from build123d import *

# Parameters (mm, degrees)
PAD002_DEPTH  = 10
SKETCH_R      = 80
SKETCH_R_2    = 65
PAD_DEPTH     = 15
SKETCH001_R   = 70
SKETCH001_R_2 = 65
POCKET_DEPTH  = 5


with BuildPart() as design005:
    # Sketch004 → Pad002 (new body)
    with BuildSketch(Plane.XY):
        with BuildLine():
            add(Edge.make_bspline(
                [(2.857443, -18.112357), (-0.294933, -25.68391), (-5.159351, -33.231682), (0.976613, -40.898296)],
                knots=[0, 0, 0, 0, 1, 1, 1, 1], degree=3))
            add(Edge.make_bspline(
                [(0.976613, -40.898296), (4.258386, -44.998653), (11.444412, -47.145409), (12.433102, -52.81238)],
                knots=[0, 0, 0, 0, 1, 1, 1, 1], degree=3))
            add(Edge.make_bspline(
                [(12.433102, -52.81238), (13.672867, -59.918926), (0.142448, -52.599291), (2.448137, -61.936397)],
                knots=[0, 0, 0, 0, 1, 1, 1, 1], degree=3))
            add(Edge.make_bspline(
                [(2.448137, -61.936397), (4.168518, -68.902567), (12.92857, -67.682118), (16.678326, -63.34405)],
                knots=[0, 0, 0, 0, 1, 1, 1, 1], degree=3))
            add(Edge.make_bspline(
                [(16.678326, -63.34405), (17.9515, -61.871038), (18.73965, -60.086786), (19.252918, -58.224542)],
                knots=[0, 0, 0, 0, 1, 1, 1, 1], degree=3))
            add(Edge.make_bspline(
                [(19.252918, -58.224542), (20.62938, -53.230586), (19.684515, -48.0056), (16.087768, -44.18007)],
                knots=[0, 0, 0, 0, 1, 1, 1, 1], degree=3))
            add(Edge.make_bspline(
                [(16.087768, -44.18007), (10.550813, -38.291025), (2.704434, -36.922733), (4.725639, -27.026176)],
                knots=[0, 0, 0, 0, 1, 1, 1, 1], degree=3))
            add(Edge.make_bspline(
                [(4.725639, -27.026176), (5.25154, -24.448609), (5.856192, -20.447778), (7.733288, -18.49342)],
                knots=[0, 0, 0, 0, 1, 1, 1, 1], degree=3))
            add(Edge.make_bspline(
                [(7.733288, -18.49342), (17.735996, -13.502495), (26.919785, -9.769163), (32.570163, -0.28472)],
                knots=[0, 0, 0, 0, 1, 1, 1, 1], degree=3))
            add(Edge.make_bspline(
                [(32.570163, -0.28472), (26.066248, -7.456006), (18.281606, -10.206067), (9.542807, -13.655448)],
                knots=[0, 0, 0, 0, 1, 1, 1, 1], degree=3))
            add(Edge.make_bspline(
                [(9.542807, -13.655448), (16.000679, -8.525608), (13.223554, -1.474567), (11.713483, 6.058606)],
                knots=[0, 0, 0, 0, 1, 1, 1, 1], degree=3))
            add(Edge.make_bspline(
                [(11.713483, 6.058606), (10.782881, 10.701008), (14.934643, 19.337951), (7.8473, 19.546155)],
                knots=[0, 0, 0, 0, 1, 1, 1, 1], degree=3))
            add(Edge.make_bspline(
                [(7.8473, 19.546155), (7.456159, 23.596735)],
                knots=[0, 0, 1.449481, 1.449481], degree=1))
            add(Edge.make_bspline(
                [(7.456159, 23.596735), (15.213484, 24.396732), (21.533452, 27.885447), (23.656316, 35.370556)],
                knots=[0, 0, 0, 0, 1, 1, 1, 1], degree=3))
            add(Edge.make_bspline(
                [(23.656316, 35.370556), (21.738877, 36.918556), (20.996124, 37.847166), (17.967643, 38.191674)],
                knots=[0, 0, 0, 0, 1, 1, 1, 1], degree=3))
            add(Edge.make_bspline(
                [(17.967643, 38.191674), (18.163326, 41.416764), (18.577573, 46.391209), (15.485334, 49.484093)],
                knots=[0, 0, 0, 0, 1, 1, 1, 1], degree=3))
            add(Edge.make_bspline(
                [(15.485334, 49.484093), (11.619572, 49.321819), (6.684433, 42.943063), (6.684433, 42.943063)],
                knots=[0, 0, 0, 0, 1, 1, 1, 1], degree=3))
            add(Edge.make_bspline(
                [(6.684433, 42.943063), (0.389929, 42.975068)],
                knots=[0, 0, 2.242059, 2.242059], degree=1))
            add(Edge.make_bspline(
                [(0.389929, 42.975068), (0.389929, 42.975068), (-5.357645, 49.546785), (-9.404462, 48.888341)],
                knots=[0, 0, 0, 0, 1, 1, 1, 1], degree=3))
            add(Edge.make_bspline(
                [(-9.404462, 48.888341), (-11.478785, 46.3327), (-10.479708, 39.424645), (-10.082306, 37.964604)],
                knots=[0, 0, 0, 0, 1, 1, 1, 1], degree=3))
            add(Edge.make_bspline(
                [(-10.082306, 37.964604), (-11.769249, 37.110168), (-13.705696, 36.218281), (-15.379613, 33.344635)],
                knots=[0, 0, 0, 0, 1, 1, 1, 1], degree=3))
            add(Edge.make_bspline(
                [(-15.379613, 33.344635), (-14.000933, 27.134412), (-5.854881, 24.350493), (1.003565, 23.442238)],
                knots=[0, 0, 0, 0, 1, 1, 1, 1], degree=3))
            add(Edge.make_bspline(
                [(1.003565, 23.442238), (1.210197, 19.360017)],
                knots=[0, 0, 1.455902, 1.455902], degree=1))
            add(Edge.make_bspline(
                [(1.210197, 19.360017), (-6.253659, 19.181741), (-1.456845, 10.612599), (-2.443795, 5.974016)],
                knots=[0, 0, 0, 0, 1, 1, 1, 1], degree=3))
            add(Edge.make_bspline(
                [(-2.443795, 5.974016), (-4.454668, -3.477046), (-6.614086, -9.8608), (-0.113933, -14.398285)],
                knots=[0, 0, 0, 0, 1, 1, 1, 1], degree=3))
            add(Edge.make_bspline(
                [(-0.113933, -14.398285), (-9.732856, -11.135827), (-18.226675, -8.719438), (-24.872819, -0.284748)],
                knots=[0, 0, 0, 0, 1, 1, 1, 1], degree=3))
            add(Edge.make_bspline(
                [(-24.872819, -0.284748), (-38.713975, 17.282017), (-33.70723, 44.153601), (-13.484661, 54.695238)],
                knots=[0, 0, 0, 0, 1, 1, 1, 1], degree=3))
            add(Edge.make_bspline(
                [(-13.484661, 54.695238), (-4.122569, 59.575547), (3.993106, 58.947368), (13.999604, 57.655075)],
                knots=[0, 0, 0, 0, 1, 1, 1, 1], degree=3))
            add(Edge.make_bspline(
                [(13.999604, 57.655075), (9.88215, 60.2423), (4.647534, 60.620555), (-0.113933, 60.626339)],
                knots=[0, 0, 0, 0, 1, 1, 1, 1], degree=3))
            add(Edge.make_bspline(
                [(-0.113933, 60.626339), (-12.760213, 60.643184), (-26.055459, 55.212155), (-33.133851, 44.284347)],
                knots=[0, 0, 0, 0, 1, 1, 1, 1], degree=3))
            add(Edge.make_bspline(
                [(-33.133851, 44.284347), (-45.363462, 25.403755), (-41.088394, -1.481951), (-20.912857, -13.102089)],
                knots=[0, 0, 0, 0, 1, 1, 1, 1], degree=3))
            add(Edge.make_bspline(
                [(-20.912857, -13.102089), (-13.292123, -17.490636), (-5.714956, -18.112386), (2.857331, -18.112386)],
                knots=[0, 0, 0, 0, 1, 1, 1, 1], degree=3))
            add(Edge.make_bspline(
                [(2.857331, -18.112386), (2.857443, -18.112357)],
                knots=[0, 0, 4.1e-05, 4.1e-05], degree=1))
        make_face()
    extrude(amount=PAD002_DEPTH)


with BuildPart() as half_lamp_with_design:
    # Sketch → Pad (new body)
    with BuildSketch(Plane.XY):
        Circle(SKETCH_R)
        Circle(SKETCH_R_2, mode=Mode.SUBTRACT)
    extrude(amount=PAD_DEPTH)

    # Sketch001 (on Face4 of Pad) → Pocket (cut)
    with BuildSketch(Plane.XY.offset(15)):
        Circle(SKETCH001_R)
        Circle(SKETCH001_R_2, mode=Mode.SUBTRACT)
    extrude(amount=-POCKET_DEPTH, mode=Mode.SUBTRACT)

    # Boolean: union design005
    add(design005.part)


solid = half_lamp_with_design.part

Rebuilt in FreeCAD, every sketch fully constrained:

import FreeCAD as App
import Part
import Sketcher
Q = App.Units.Quantity

doc = App.newDocument("Part")
body = doc.addObject("PartDesign::Body", "Body")

# Sketch on XY plane
sketch1 = body.newObject("Sketcher::SketchObject", "Sketch")
sketch1.AttachmentSupport = (doc.getObject("XY_Plane"), [""])
sketch1.MapMode = "FlatFace"
sketch1.addGeometry(Part.BSplineCurve([App.Vector(2.857443, -18.112357, 0), App.Vector(-0.294933, -25.68391, 0), App.Vector(-5.159351, -33.231682, 0), App.Vector(0.976613, -40.898296, 0)], [4, 4], [0, 1], False, 3, [1, 1, 1, 1], False), False)
sketch1.addGeometry(Part.BSplineCurve([App.Vector(0.976613, -40.898296, 0), App.Vector(4.258386, -44.998653, 0), App.Vector(11.444412, -47.145409, 0), App.Vector(12.433102, -52.81238, 0)], [4, 4], [0, 1], False, 3, [1, 1, 1, 1], False), False)
sketch1.addGeometry(Part.BSplineCurve([App.Vector(12.433102, -52.81238, 0), App.Vector(13.672867, -59.918926, 0), App.Vector(0.142448, -52.599291, 0), App.Vector(2.448137, -61.936397, 0)], [4, 4], [0, 1], False, 3, [1, 1, 1, 1], False), False)
sketch1.addGeometry(Part.BSplineCurve([App.Vector(2.448137, -61.936397, 0), App.Vector(4.168518, -68.902567, 0), App.Vector(12.92857, -67.682118, 0), App.Vector(16.678326, -63.34405, 0)], [4, 4], [0, 1], False, 3, [1, 1, 1, 1], False), False)
sketch1.addGeometry(Part.BSplineCurve([App.Vector(16.678326, -63.34405, 0), App.Vector(17.9515, -61.871038, 0), App.Vector(18.73965, -60.086786, 0), App.Vector(19.252918, -58.224542, 0)], [4, 4], [0, 1], False, 3, [1, 1, 1, 1], False), False)
sketch1.addGeometry(Part.BSplineCurve([App.Vector(19.252918, -58.224542, 0), App.Vector(20.62938, -53.230586, 0), App.Vector(19.684515, -48.0056, 0), App.Vector(16.087768, -44.18007, 0)], [4, 4], [0, 1], False, 3, [1, 1, 1, 1], False), False)
sketch1.addGeometry(Part.BSplineCurve([App.Vector(16.087768, -44.18007, 0), App.Vector(10.550813, -38.291025, 0), App.Vector(2.704434, -36.922733, 0), App.Vector(4.725639, -27.026176, 0)], [4, 4], [0, 1], False, 3, [1, 1, 1, 1], False), False)
sketch1.addGeometry(Part.BSplineCurve([App.Vector(4.725639, -27.026176, 0), App.Vector(5.25154, -24.448609, 0), App.Vector(5.856192, -20.447778, 0), App.Vector(7.733288, -18.49342, 0)], [4, 4], [0, 1], False, 3, [1, 1, 1, 1], False), False)
sketch1.addGeometry(Part.BSplineCurve([App.Vector(7.733288, -18.49342, 0), App.Vector(17.735996, -13.502495, 0), App.Vector(26.919785, -9.769163, 0), App.Vector(32.570163, -0.28472, 0)], [4, 4], [0, 1], False, 3, [1, 1, 1, 1], False), False)
sketch1.addGeometry(Part.BSplineCurve([App.Vector(32.570163, -0.28472, 0), App.Vector(26.066248, -7.456006, 0), App.Vector(18.281606, -10.206067, 0), App.Vector(9.542807, -13.655448, 0)], [4, 4], [0, 1], False, 3, [1, 1, 1, 1], False), False)
sketch1.addGeometry(Part.BSplineCurve([App.Vector(9.542807, -13.655448, 0), App.Vector(16.000679, -8.525608, 0), App.Vector(13.223554, -1.474567, 0), App.Vector(11.713483, 6.058606, 0)], [4, 4], [0, 1], False, 3, [1, 1, 1, 1], False), False)
sketch1.addGeometry(Part.BSplineCurve([App.Vector(11.713483, 6.058606, 0), App.Vector(10.782881, 10.701008, 0), App.Vector(14.934643, 19.337951, 0), App.Vector(7.8473, 19.546155, 0)], [4, 4], [0, 1], False, 3, [1, 1, 1, 1], False), False)
sketch1.addGeometry(Part.BSplineCurve([App.Vector(7.8473, 19.546155, 0), App.Vector(7.456159, 23.596735, 0)], [2, 2], [0, 1.449481], False, 1, [1, 1], False), False)
sketch1.addGeometry(Part.BSplineCurve([App.Vector(7.456159, 23.596735, 0), App.Vector(15.213484, 24.396732, 0), App.Vector(21.533452, 27.885447, 0), App.Vector(23.656316, 35.370556, 0)], [4, 4], [0, 1], False, 3, [1, 1, 1, 1], False), False)
sketch1.addGeometry(Part.BSplineCurve([App.Vector(23.656316, 35.370556, 0), App.Vector(21.738877, 36.918556, 0), App.Vector(20.996124, 37.847166, 0), App.Vector(17.967643, 38.191674, 0)], [4, 4], [0, 1], False, 3, [1, 1, 1, 1], False), False)
sketch1.addGeometry(Part.BSplineCurve([App.Vector(17.967643, 38.191674, 0), App.Vector(18.163326, 41.416764, 0), App.Vector(18.577573, 46.391209, 0), App.Vector(15.485334, 49.484093, 0)], [4, 4], [0, 1], False, 3, [1, 1, 1, 1], False), False)
sketch1.addGeometry(Part.BSplineCurve([App.Vector(15.485334, 49.484093, 0), App.Vector(11.619572, 49.321819, 0), App.Vector(6.684433, 42.943063, 0), App.Vector(6.684433, 42.943063, 0)], [4, 4], [0, 1], False, 3, [1, 1, 1, 1], False), False)
sketch1.addGeometry(Part.BSplineCurve([App.Vector(6.684433, 42.943063, 0), App.Vector(0.389929, 42.975068, 0)], [2, 2], [0, 2.242059], False, 1, [1, 1], False), False)
sketch1.addGeometry(Part.BSplineCurve([App.Vector(0.389929, 42.975068, 0), App.Vector(0.389929, 42.975068, 0), App.Vector(-5.357645, 49.546785, 0), App.Vector(-9.404462, 48.888341, 0)], [4, 4], [0, 1], False, 3, [1, 1, 1, 1], False), False)
sketch1.addGeometry(Part.BSplineCurve([App.Vector(-9.404462, 48.888341, 0), App.Vector(-11.478785, 46.3327, 0), App.Vector(-10.479708, 39.424645, 0), App.Vector(-10.082306, 37.964604, 0)], [4, 4], [0, 1], False, 3, [1, 1, 1, 1], False), False)
sketch1.addGeometry(Part.BSplineCurve([App.Vector(-10.082306, 37.964604, 0), App.Vector(-11.769249, 37.110168, 0), App.Vector(-13.705696, 36.218281, 0), App.Vector(-15.379613, 33.344635, 0)], [4, 4], [0, 1], False, 3, [1, 1, 1, 1], False), False)
sketch1.addGeometry(Part.BSplineCurve([App.Vector(-15.379613, 33.344635, 0), App.Vector(-14.000933, 27.134412, 0), App.Vector(-5.854881, 24.350493, 0), App.Vector(1.003565, 23.442238, 0)], [4, 4], [0, 1], False, 3, [1, 1, 1, 1], False), False)
sketch1.addGeometry(Part.BSplineCurve([App.Vector(1.003565, 23.442238, 0), App.Vector(1.210197, 19.360017, 0)], [2, 2], [0, 1.455902], False, 1, [1, 1], False), False)
sketch1.addGeometry(Part.BSplineCurve([App.Vector(1.210197, 19.360017, 0), App.Vector(-6.253659, 19.181741, 0), App.Vector(-1.456845, 10.612599, 0), App.Vector(-2.443795, 5.974016, 0)], [4, 4], [0, 1], False, 3, [1, 1, 1, 1], False), False)
sketch1.addGeometry(Part.BSplineCurve([App.Vector(-2.443795, 5.974016, 0), App.Vector(-4.454668, -3.477046, 0), App.Vector(-6.614086, -9.8608, 0), App.Vector(-0.113933, -14.398285, 0)], [4, 4], [0, 1], False, 3, [1, 1, 1, 1], False), False)
sketch1.addGeometry(Part.BSplineCurve([App.Vector(-0.113933, -14.398285, 0), App.Vector(-9.732856, -11.135827, 0), App.Vector(-18.226675, -8.719438, 0), App.Vector(-24.872819, -0.284748, 0)], [4, 4], [0, 1], False, 3, [1, 1, 1, 1], False), False)
sketch1.addGeometry(Part.BSplineCurve([App.Vector(-24.872819, -0.284748, 0), App.Vector(-38.713975, 17.282017, 0), App.Vector(-33.70723, 44.153601, 0), App.Vector(-13.484661, 54.695238, 0)], [4, 4], [0, 1], False, 3, [1, 1, 1, 1], False), False)
sketch1.addGeometry(Part.BSplineCurve([App.Vector(-13.484661, 54.695238, 0), App.Vector(-4.122569, 59.575547, 0), App.Vector(3.993106, 58.947368, 0), App.Vector(13.999604, 57.655075, 0)], [4, 4], [0, 1], False, 3, [1, 1, 1, 1], False), False)
sketch1.addGeometry(Part.BSplineCurve([App.Vector(13.999604, 57.655075, 0), App.Vector(9.88215, 60.2423, 0), App.Vector(4.647534, 60.620555, 0), App.Vector(-0.113933, 60.626339, 0)], [4, 4], [0, 1], False, 3, [1, 1, 1, 1], False), False)
sketch1.addGeometry(Part.BSplineCurve([App.Vector(-0.113933, 60.626339, 0), App.Vector(-12.760213, 60.643184, 0), App.Vector(-26.055459, 55.212155, 0), App.Vector(-33.133851, 44.284347, 0)], [4, 4], [0, 1], False, 3, [1, 1, 1, 1], False), False)
sketch1.addGeometry(Part.BSplineCurve([App.Vector(-33.133851, 44.284347, 0), App.Vector(-45.363462, 25.403755, 0), App.Vector(-41.088394, -1.481951, 0), App.Vector(-20.912857, -13.102089, 0)], [4, 4], [0, 1], False, 3, [1, 1, 1, 1], False), False)
sketch1.addGeometry(Part.BSplineCurve([App.Vector(-20.912857, -13.102089, 0), App.Vector(-13.292123, -17.490636, 0), App.Vector(-5.714956, -18.112386, 0), App.Vector(2.857331, -18.112386, 0)], [4, 4], [0, 1], False, 3, [1, 1, 1, 1], False), False)
sketch1.addGeometry(Part.BSplineCurve([App.Vector(2.857331, -18.112386, 0), App.Vector(2.857443, -18.112357, 0)], [2, 2], [0, 0.000041], False, 1, [1, 1], False), False)
sketch1.addConstraint(Sketcher.Constraint("Block", 0))
sketch1.addConstraint(Sketcher.Constraint("Block", 1))
sketch1.addConstraint(Sketcher.Constraint("Block", 2))
sketch1.addConstraint(Sketcher.Constraint("Block", 3))
sketch1.addConstraint(Sketcher.Constraint("Block", 4))
sketch1.addConstraint(Sketcher.Constraint("Block", 5))
sketch1.addConstraint(Sketcher.Constraint("Block", 6))
sketch1.addConstraint(Sketcher.Constraint("Block", 7))
sketch1.addConstraint(Sketcher.Constraint("Block", 8))
sketch1.addConstraint(Sketcher.Constraint("Block", 9))
sketch1.addConstraint(Sketcher.Constraint("Block", 10))
sketch1.addConstraint(Sketcher.Constraint("Block", 11))
sketch1.addConstraint(Sketcher.Constraint("Block", 12))
sketch1.addConstraint(Sketcher.Constraint("Block", 13))
sketch1.addConstraint(Sketcher.Constraint("Block", 14))
sketch1.addConstraint(Sketcher.Constraint("Block", 15))
sketch1.addConstraint(Sketcher.Constraint("Block", 16))
sketch1.addConstraint(Sketcher.Constraint("Block", 17))
sketch1.addConstraint(Sketcher.Constraint("Block", 18))
sketch1.addConstraint(Sketcher.Constraint("Block", 19))
sketch1.addConstraint(Sketcher.Constraint("Block", 20))
sketch1.addConstraint(Sketcher.Constraint("Block", 21))
sketch1.addConstraint(Sketcher.Constraint("Block", 22))
sketch1.addConstraint(Sketcher.Constraint("Block", 23))
sketch1.addConstraint(Sketcher.Constraint("Block", 24))
sketch1.addConstraint(Sketcher.Constraint("Block", 25))
sketch1.addConstraint(Sketcher.Constraint("Block", 26))
sketch1.addConstraint(Sketcher.Constraint("Block", 27))
sketch1.addConstraint(Sketcher.Constraint("Block", 28))
sketch1.addConstraint(Sketcher.Constraint("Block", 29))
sketch1.addConstraint(Sketcher.Constraint("Block", 30))
sketch1.addConstraint(Sketcher.Constraint("Block", 31))
sketch1.addConstraint(Sketcher.Constraint("Block", 32))
pad1 = body.newObject("PartDesign::Pad", "Pad")
pad1.Profile = sketch1
pad1.Length = 10
body2 = doc.addObject("PartDesign::Body", "Body001")

# Sketch on XY plane
sketch2 = body2.newObject("Sketcher::SketchObject", "Sketch001")
sketch2.AttachmentSupport = (doc.getObject("XY_Plane001"), [""])
sketch2.MapMode = "FlatFace"
sketch2.addGeometry(Part.Circle(App.Vector(0, 0, 0), App.Vector(0, 0, 1), 80), False)
sketch2.addGeometry(Part.Circle(App.Vector(0, 0, 0), App.Vector(0, 0, 1), 65), False)
sketch2.addConstraint(Sketcher.Constraint("Coincident", 0, 3, -1, 1))
sketch2.addConstraint(Sketcher.Constraint("Coincident", 1, 3, -1, 1))
sketch2.addConstraint(Sketcher.Constraint("Diameter", 0, Q("160 mm")))
sketch2.addConstraint(Sketcher.Constraint("Diameter", 1, Q("130 mm")))
pad2 = body2.newObject("PartDesign::Pad", "Pad001")
pad2.Profile = sketch2
pad2.Length = 15

# Sketch on XY plane
sketch3 = body2.newObject("Sketcher::SketchObject", "Sketch002")
sketch3.AttachmentSupport = (doc.getObject("XY_Plane001"), [""])
sketch3.MapMode = "FlatFace"
sketch3.AttachmentOffset = App.Placement(App.Vector(0, 0, 15), App.Rotation())
sketch3.addGeometry(Part.Circle(App.Vector(0, 0, 0), App.Vector(0, 0, 1), 70), False)
sketch3.addGeometry(Part.Circle(App.Vector(0, 0, 0), App.Vector(0, 0, 1), 65), False)
sketch3.addConstraint(Sketcher.Constraint("Coincident", 0, 3, -1, 1))
sketch3.addConstraint(Sketcher.Constraint("Coincident", 1, 3, -1, 1))
sketch3.addConstraint(Sketcher.Constraint("Diameter", 0, Q("140 mm")))
sketch3.addConstraint(Sketcher.Constraint("Diameter", 1, Q("130 mm")))
pocket1 = body2.newObject("PartDesign::Pocket", "Pocket")
pocket1.Profile = sketch3
pocket1.Length = 5
doc.recompute()

boolean = body2.newObject("PartDesign::Boolean", "Boolean")
boolean.Type = "Fuse"
boolean.addObjects([body])

doc.recompute()
